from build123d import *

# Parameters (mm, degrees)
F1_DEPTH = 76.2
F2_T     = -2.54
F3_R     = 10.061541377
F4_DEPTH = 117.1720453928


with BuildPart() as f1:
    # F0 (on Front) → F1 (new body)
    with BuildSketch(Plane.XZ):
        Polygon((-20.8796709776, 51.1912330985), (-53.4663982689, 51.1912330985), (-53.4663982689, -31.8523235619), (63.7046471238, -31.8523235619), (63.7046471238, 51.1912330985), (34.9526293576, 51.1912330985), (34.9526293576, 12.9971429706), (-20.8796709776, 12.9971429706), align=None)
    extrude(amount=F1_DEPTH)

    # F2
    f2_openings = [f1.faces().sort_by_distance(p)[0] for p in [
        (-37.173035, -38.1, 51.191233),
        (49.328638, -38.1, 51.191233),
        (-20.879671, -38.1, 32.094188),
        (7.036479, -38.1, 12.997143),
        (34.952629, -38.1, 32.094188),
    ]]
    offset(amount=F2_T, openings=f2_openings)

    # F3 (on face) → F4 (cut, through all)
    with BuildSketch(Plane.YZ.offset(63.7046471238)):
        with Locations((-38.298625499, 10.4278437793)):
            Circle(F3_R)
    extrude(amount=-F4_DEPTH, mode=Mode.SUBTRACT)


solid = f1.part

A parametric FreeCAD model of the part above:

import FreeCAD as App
import Part
import Sketcher
from FreeCAD import Vector


def faces_at(feature, points):
    """Names of the faces that lie closest to the given points."""
    faces = feature.Shape.Faces
    near = lambda p: min(range(len(faces)), key=lambda i: faces[i].distToShape(Part.Vertex(*p))[0])
    return sorted({f"Face{near(p) + 1}" for p in points})


def add_polygon(sketch, points):
    """Adds a closed chain of lines whose ends are joined by coincident constraints."""
    first, n = sketch.GeometryCount, len(points)
    for a, b in zip(points, points[1:] + points[:1]):
        sketch.addGeometry(Part.LineSegment(App.Vector(*a, 0), App.Vector(*b, 0)), False)
    for i in range(n):
        sketch.addConstraint(Sketcher.Constraint("Coincident", first + i, 2, first + (i + 1) % n, 1))

doc = App.newDocument("Part")
params = doc.addObject("Spreadsheet::Sheet", "Params")
for row, (alias, value) in enumerate([
    ("pad1_length", "3 in"),
    ("thickness_wall", "0.1 in"),
], start=1):
    params.set(f"A{row}", alias)
    params.set(f"B{row}", "=" + value)
    params.setAlias(f"B{row}", alias)

body = doc.addObject("PartDesign::Body", "Body")

# Sketch on XZ plane
sketch1 = body.newObject("Sketcher::SketchObject", "Sketch")
sketch1.AttachmentSupport = (doc.getObject("XZ_Plane"), [""])
sketch1.MapMode = "FlatFace"
add_polygon(sketch1, [(-21, 51), (-53, 51), (-53, -32), (64, -32), (64, 51), (35, 51), (35, 13), (-21, 13)])  # lines 0-7
sketch1.addConstraint(Sketcher.Constraint("Horizontal", 0))
sketch1.addConstraint(Sketcher.Constraint("Vertical", 1))
sketch1.addConstraint(Sketcher.Constraint("Horizontal", 2))
sketch1.addConstraint(Sketcher.Constraint("Vertical", 3))
sketch1.addConstraint(Sketcher.Constraint("Horizontal", 4))
sketch1.addConstraint(Sketcher.Constraint("Vertical", 5))
sketch1.addConstraint(Sketcher.Constraint("Horizontal", 6))
sketch1.addConstraint(Sketcher.Constraint("Vertical", 7))
sketch1.addConstraint(Sketcher.Constraint("Horizontal", 0, 2, 3, 2))
sketch1.addConstraint(Sketcher.Constraint("DistanceX", 6, 2, 6, 1, 55.8323))
sketch1.addConstraint(Sketcher.Constraint("DistanceY", 5, 2, 5, 1, 38.19409))
sketch1.addConstraint(Sketcher.Constraint("DistanceX", 0, 2, -1, 1, 53.466398))
sketch1.addConstraint(Sketcher.Constraint("DistanceX", 0, 2, 0, 1, 32.586727))
sketch1.addConstraint(Sketcher.Constraint("DistanceX", 2, 1, 2, 2, 117.171045))
sketch1.addConstraint(Sketcher.Constraint("DistanceY", 1, 2, 1, 1, 83.043557))
sketch1.addConstraint(Sketcher.Constraint("DistanceY", -1, 1, 0, 2, 51.191233))
pad1 = body.newObject("PartDesign::Pad", "Pad")
pad1.Profile = sketch1
pad1.setExpression("Length", "Params.pad1_length")
doc.recompute()

thickness = body.newObject("PartDesign::Thickness", "Thickness")
thickness.Base = (pad1, faces_at(pad1, [
    (-37.173, -38.1, 51.191),
    (49.329, -38.1, 51.191),
    (-20.88, -38.1, 32.094),
    (7.036, -38.1, 12.997),
    (34.953, -38.1, 32.094),
]))
thickness.setExpression("Value", "Params.thickness_wall")
thickness.Reversed = True
thickness.Join = "Arc"

# Sketch on YZ plane
sketch2 = body.newObject("Sketcher::SketchObject", "Sketch001")
sketch2.AttachmentSupport = (doc.getObject("YZ_Plane"), [""])
sketch2.MapMode = "FlatFace"
sketch2.AttachmentOffset = App.Placement(Vector(0, 0, 63.704647), App.Rotation())
sketch2.addGeometry(Part.Circle(Vector(-38, 10, 0), Vector(0, 0, 1), 10), False)
sketch2.addConstraint(Sketcher.Constraint("Diameter", 0, 20.123083))
sketch2.addConstraint(Sketcher.Constraint("DistanceX", 0, 3, -1, 1, 38.298625))
sketch2.addConstraint(Sketcher.Constraint("DistanceY", -1, 1, 0, 3, 10.427844))
pocket1 = body.newObject("PartDesign::Pocket", "Pocket")
pocket1.Profile = sketch2
pocket1.Type = "ThroughAll"

doc.recompute()
